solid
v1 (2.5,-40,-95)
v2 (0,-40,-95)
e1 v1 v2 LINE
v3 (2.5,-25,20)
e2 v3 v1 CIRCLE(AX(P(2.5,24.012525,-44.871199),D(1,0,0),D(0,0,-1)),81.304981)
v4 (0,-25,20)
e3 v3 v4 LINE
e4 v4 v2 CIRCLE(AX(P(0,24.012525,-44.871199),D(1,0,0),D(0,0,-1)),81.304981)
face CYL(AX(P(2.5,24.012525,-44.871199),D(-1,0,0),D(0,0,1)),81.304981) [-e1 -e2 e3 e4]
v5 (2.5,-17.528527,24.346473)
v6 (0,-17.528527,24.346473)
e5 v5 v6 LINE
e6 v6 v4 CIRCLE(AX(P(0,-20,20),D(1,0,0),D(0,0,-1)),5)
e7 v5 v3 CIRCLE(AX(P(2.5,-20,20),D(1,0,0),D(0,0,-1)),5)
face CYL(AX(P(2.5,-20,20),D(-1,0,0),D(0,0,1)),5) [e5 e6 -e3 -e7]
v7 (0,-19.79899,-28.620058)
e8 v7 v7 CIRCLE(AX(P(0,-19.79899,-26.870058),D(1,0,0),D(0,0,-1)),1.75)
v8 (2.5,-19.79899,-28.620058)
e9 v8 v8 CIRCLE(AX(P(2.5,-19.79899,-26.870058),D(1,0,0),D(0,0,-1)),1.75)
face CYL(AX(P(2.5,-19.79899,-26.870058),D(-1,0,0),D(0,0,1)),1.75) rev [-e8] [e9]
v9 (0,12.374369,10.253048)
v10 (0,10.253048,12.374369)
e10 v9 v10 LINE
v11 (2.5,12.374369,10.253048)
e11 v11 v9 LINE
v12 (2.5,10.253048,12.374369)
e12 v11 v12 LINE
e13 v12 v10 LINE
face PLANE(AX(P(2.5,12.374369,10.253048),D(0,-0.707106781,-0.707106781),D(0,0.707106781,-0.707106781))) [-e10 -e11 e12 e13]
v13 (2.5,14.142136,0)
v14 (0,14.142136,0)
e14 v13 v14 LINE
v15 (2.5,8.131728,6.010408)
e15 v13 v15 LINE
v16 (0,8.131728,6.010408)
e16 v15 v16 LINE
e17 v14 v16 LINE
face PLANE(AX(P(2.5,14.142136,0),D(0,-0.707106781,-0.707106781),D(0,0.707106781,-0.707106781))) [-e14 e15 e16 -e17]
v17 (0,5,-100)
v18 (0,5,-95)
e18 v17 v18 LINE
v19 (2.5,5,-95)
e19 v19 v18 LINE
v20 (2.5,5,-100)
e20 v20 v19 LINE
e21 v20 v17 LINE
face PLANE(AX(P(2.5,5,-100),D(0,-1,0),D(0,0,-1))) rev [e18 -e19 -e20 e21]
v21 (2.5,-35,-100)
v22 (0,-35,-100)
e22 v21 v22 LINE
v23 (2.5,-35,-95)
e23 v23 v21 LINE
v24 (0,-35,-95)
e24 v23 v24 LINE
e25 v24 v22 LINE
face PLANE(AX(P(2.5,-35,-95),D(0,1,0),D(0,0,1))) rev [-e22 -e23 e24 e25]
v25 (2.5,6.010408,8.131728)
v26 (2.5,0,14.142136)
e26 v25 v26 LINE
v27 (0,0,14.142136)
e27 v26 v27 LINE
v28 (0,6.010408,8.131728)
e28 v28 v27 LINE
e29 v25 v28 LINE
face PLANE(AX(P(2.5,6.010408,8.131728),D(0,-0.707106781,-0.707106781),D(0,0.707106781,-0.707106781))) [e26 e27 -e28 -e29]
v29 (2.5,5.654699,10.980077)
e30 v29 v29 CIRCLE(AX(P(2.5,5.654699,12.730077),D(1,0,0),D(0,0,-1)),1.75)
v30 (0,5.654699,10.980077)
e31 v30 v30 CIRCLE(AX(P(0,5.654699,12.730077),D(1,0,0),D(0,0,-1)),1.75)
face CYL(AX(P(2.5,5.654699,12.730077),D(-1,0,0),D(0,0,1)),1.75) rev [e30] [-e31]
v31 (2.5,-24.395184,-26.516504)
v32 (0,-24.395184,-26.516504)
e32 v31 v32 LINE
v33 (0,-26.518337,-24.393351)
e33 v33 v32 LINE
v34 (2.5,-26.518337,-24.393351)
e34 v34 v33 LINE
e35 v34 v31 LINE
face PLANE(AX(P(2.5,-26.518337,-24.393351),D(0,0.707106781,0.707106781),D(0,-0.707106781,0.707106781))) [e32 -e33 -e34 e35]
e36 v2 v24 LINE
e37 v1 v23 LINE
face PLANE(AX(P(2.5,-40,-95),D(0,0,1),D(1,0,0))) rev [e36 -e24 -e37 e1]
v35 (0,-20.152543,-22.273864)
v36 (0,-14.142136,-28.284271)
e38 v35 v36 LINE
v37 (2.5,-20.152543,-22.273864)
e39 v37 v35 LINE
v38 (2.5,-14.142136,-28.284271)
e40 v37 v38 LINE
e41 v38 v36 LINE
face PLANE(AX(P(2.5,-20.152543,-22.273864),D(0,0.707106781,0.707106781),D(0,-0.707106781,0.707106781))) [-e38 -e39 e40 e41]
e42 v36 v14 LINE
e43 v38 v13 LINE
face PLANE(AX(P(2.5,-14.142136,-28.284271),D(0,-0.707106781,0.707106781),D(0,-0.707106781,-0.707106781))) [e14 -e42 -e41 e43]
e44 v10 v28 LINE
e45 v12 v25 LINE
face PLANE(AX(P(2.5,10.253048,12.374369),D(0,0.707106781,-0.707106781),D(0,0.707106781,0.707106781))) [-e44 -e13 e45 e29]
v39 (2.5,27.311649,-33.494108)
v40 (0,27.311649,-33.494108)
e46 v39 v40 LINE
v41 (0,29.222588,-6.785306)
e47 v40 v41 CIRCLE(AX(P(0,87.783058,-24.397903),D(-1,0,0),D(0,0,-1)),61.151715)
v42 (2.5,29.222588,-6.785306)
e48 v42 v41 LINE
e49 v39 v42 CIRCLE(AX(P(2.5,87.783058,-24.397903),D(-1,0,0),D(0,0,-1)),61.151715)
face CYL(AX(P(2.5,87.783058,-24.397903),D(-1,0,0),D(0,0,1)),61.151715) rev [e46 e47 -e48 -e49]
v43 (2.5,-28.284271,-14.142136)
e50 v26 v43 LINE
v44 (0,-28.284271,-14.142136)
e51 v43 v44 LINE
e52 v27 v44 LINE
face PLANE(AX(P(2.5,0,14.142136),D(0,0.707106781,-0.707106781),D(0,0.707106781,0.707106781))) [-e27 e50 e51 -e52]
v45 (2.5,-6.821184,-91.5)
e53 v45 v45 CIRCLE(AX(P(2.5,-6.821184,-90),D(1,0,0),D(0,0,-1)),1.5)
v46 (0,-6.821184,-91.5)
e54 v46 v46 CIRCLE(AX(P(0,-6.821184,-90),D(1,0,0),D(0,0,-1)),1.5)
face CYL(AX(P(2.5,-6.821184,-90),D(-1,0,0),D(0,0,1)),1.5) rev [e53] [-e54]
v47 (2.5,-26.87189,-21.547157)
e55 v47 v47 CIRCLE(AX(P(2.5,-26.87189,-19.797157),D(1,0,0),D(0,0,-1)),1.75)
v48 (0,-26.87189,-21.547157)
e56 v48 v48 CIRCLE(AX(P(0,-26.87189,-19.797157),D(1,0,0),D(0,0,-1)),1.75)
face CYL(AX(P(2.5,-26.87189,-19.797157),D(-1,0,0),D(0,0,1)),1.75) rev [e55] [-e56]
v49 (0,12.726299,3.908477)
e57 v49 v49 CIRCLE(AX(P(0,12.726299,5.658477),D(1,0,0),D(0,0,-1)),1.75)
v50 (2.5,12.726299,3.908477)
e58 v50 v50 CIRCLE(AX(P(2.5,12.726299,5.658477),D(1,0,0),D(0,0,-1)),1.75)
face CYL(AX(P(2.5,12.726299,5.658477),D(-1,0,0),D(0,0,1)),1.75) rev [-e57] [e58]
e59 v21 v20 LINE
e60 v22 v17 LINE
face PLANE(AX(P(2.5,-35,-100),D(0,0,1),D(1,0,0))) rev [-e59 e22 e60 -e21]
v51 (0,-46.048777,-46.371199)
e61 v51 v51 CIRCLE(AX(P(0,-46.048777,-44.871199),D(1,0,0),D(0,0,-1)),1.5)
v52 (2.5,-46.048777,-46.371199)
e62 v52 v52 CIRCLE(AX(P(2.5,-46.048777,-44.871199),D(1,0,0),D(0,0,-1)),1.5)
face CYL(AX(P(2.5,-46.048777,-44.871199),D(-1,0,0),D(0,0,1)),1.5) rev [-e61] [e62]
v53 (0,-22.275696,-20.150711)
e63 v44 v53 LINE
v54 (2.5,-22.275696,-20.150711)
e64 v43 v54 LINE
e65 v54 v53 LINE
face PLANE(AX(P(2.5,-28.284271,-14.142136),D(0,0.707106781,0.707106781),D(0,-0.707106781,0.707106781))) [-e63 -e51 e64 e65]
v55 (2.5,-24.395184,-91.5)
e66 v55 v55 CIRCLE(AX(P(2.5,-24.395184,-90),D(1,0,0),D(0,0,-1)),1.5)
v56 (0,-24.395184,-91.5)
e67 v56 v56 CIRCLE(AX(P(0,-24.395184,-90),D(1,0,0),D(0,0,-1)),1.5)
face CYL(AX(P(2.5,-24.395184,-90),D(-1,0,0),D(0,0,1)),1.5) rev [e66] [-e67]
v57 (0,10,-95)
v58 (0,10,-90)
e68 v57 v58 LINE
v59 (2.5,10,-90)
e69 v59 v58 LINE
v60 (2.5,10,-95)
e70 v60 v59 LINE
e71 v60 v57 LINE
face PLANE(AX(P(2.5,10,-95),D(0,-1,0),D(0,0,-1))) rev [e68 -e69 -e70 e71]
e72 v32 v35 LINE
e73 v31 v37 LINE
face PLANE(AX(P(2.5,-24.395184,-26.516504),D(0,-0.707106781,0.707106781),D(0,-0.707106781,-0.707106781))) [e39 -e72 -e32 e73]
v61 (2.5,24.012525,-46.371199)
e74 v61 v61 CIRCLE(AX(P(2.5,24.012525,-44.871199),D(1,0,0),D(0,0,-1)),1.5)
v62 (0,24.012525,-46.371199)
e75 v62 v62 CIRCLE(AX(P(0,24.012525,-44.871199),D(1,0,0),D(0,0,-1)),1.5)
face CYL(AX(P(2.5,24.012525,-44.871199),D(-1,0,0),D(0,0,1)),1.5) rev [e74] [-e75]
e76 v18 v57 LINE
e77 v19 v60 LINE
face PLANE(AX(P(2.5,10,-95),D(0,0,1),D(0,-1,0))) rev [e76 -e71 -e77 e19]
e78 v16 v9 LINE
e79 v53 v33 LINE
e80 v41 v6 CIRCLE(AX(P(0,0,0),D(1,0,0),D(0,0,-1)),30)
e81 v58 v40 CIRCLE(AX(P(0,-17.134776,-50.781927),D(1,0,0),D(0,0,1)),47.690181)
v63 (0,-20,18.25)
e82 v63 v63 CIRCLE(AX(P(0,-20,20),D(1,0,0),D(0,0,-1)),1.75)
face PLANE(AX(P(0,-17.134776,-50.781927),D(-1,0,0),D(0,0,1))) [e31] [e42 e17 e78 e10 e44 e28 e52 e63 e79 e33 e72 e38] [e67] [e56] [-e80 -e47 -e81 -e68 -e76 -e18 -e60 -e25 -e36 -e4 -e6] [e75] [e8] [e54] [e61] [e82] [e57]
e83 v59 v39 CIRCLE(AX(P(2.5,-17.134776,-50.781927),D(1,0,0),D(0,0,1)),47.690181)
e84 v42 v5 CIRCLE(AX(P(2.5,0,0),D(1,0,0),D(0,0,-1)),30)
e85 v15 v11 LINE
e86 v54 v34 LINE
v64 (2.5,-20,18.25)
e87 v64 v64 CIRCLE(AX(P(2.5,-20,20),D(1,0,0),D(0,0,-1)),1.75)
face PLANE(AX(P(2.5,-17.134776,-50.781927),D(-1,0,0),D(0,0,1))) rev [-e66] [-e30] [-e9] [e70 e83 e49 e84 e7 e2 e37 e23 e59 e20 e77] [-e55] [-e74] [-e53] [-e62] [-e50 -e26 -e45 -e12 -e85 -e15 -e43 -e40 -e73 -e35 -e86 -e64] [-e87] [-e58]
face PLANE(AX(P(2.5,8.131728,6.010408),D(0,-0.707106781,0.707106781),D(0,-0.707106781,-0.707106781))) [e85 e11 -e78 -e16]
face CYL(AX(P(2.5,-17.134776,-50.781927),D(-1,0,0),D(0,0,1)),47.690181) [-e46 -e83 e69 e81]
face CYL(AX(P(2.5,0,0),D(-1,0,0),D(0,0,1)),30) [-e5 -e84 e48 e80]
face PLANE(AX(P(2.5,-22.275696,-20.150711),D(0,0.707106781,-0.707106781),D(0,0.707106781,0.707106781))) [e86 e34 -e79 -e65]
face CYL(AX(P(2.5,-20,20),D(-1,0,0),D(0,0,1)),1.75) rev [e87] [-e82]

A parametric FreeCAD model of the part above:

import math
import FreeCAD as App
import Part
import Sketcher
from FreeCAD import Vector
Q = App.Units.Quantity

doc = App.newDocument("Part")
params = doc.addObject("Spreadsheet::Sheet", "Params")
for row, (alias, value) in enumerate([
    ("sketch1_diameter", "3 mm"),
    ("sketch1_radius", "30 mm"),
    ("sketch1_radius2", "5 mm"),
    ("sketch1_diameter2", "3.5 mm"),
    ("sketch1_width", "5 mm"),
    ("pad1_length", "2.5 mm"),
], start=1):
    params.set(f"A{row}", alias)
    params.set(f"B{row}", "=" + value)
    params.setAlias(f"B{row}", alias)

body = doc.addObject("PartDesign::Body", "Body")

# Sketch on YZ plane
sketch1 = body.newObject("Sketcher::SketchObject", "Sketch")
sketch1.AttachmentSupport = (doc.getObject("YZ_Plane"), [""])
sketch1.MapMode = "FlatFace"
sketch1.addGeometry([
    Part.LineSegment(Vector(10, -95, 0), Vector(10, -90, 0)),  # 0
    Part.ArcOfCircle(Part.Circle(Vector(-17.134776, -50.781927, 0), Vector(0, 0, 1), 47.690181), math.radians(-55.320846), math.radians(21.253974)),  # 1
    Part.ArcOfCircle(Part.Circle(Vector(87.783058, -24.397903, 0), Vector(0, 0, 1), 61.151715), math.radians(163.260859), math.radians(188.554388)),  # 2
    Part.ArcOfCircle(Part.Circle(Vector(0, 0, 0), Vector(0, 0, 1), 30), math.radians(-13.072091), math.radians(125.752442)),  # 3
    Part.ArcOfCircle(Part.Circle(Vector(-20, 20, 0), Vector(0, 0, 1), 5), math.radians(60.37676), math.radians(180)),  # 4
    Part.ArcOfCircle(Part.Circle(Vector(24.012525, -44.871199, 0), Vector(0, 0, 1), 81.304981), math.radians(127.072359), math.radians(218.064825)),  # 5
    Part.LineSegment(Vector(-40, -95, 0), Vector(-35, -95, 0)),  # 6
    Part.LineSegment(Vector(-35, -95, 0), Vector(-35, -100, 0)),  # 7
    Part.LineSegment(Vector(-35, -100, 0), Vector(5, -100, 0)),  # 8
    Part.LineSegment(Vector(5, -100, 0), Vector(5, -95, 0)),  # 9
    Part.LineSegment(Vector(5, -95, 0), Vector(10, -95, 0)),  # 10
    Part.Circle(Vector(-20, 20, 0), Vector(0, 0, 1), 1.75),  # 11
    Part.Circle(Vector(-26.87189, -19.797157, 0), Vector(0, 0, 1), 1.75),  # 12
    Part.Circle(Vector(-19.79899, -26.870058, 0), Vector(0, 0, 1), 1.75),  # 13
    Part.Circle(Vector(-46.048777, -44.871199, 0), Vector(0, 0, 1), 1.5),  # 14
    Part.Circle(Vector(-24.395184, -90, 0), Vector(0, 0, 1), 1.5),  # 15
    Part.Circle(Vector(5.654699, 12.730077, 0), Vector(0, 0, 1), 1.75),  # 16
    Part.LineSegment(Vector(-28.284271, -14.142136, 0), Vector(0, 14.142136, 0)),  # 17
    Part.LineSegment(Vector(0, 14.142136, 0), Vector(6.010408, 8.131728, 0)),  # 18
    Part.LineSegment(Vector(6.010408, 8.131728, 0), Vector(10.253048, 12.374369, 0)),  # 19
    Part.LineSegment(Vector(10.253048, 12.374369, 0), Vector(12.374369, 10.253048, 0)),  # 20
    Part.LineSegment(Vector(12.374369, 10.253048, 0), Vector(8.131728, 6.010408, 0)),  # 21
    Part.LineSegment(Vector(8.131728, 6.010408, 0), Vector(14.142136, 0, 0)),  # 22
    Part.LineSegment(Vector(14.142136, 0, 0), Vector(-14.142136, -28.284271, 0)),  # 23
    Part.LineSegment(Vector(-14.142136, -28.284271, 0), Vector(-20.152543, -22.273864, 0)),  # 24
    Part.LineSegment(Vector(-20.152543, -22.273864, 0), Vector(-24.395184, -26.516504, 0)),  # 25
    Part.LineSegment(Vector(-24.395184, -26.516504, 0), Vector(-26.518337, -24.393351, 0)),  # 26
    Part.LineSegment(Vector(-26.518337, -24.393351, 0), Vector(-22.275696, -20.150711, 0)),  # 27
    Part.LineSegment(Vector(-22.275696, -20.150711, 0), Vector(-28.284271, -14.142136, 0)),  # 28
    Part.Circle(Vector(12.726299, 5.658477, 0), Vector(0, 0, 1), 1.75),  # 29
    Part.Circle(Vector(-6.821184, -90, 0), Vector(0, 0, 1), 1.5),  # 30
    Part.Circle(Vector(24.012525, -44.871199, 0), Vector(0, 0, 1), 1.5),  # 31
], False)
sketch1.addConstraint([
    Sketcher.Constraint("Coincident", 0, 2, 1, 1),
    Sketcher.Constraint("Coincident", 1, 2, 2, 2),
    Sketcher.Constraint("Coincident", 2, 1, 3, 1),
    Sketcher.Constraint("Coincident", 3, 2, 4, 1),
    Sketcher.Constraint("Coincident", 4, 2, 5, 1),
    Sketcher.Constraint("Coincident", 5, 2, 6, 1),
    Sketcher.Constraint("Coincident", 6, 2, 7, 1),
    Sketcher.Constraint("Coincident", 7, 2, 8, 1),
    Sketcher.Constraint("Coincident", 8, 2, 9, 1),
    Sketcher.Constraint("Coincident", 9, 2, 10, 1),
    Sketcher.Constraint("Coincident", 10, 2, 0, 1),
    Sketcher.Constraint("Coincident", 17, 2, 18, 1),
    Sketcher.Constraint("Coincident", 18, 2, 19, 1),
    Sketcher.Constraint("Coincident", 19, 2, 20, 1),
    Sketcher.Constraint("Coincident", 20, 2, 21, 1),
    Sketcher.Constraint("Coincident", 21, 2, 22, 1),
    Sketcher.Constraint("Coincident", 22, 2, 23, 1),
    Sketcher.Constraint("Coincident", 23, 2, 24, 1),
    Sketcher.Constraint("Coincident", 24, 2, 25, 1),
    Sketcher.Constraint("Coincident", 25, 2, 26, 1),
    Sketcher.Constraint("Coincident", 26, 2, 27, 1),
    Sketcher.Constraint("Coincident", 27, 2, 28, 1),
    Sketcher.Constraint("Coincident", 28, 2, 17, 1),
    Sketcher.Constraint("Vertical", 0),
    Sketcher.Constraint("Horizontal", 6),
    Sketcher.Constraint("Vertical", 7),
    Sketcher.Constraint("Horizontal", 8),
    Sketcher.Constraint("Vertical", 9),
    Sketcher.Constraint("Horizontal", 10),
    Sketcher.Constraint("Coincident", 3, 3, -1, 1),
    Sketcher.Constraint("Coincident", 11, 3, 4, 3),
    Sketcher.Constraint("Coincident", 31, 3, 5, 3),
    Sketcher.Constraint("Equal", 11, 12),
    Sketcher.Constraint("Equal", 12, 13),
    Sketcher.Constraint("Equal", 14, 15),
    Sketcher.Constraint("Equal", 13, 16),
    Sketcher.Constraint("Equal", 16, 29),
    Sketcher.Constraint("Equal", 15, 30),
    Sketcher.Constraint("Equal", 30, 31),
    Sketcher.Constraint("PointOnObject", 17, 2, -2),
    Sketcher.Constraint("PointOnObject", 22, 2, -1),
    Sketcher.Constraint("Perpendicular", 17, 18),
    Sketcher.Constraint("Perpendicular", 18, 19),
    Sketcher.Constraint("Perpendicular", 19, 20),
    Sketcher.Constraint("Perpendicular", 20, 21),
    Sketcher.Constraint("Perpendicular", 21, 22),
    Sketcher.Constraint("Perpendicular", 22, 23),
    Sketcher.Constraint("Perpendicular", 23, 24),
    Sketcher.Constraint("Perpendicular", 24, 25),
    Sketcher.Constraint("Perpendicular", 25, 26),
    Sketcher.Constraint("Perpendicular", 26, 27),
    Sketcher.Constraint("Perpendicular", 27, 28),
    Sketcher.Constraint("Horizontal", 5, 3, 14, 3),
    Sketcher.Constraint("Horizontal", 15, 3, 30, 3),
    Sketcher.Constraint("Horizontal", 30, 3, 0, 2),
    Sketcher.Constraint("Horizontal", 11, 3, 4, 2),
    Sketcher.Constraint("Horizontal", 6, 2, 9, 2),
    Sketcher.Constraint("Vertical", 15, 3, 25, 2),
    Sketcher.Constraint("Equal", 6, 10),
    Sketcher.Constraint("Equal", 10, 0),
    Sketcher.Constraint("Equal", 0, 7),
    Sketcher.Constraint("Equal", 19, 21),
    Sketcher.Constraint("Equal", 18, 22),
    Sketcher.Constraint("Equal", 17, 23),
    Sketcher.Constraint("Equal", 22, 24),
    Sketcher.Constraint("Equal", 21, 25),
    Sketcher.Constraint("Diameter", 14, 3.0),
    Sketcher.Constraint("Radius", 3, 30.0),
    Sketcher.Constraint("Radius", 4, 5.0),
    Sketcher.Constraint("Diameter", 11, 3.5),
    Sketcher.Constraint("DistanceX", 6, 1, 6, 2, 5.0),
    Sketcher.Constraint("DistanceX", 8, 1, 8, 2, 40.0),
    Sketcher.Constraint("Angle", 17, Q("45 deg")),
    Sketcher.Constraint("Distance", 17, 40.0),
    Sketcher.Constraint("Distance", 19, 6.0),
    Sketcher.Constraint("Distance", 20, 3.0),
    Sketcher.Constraint("DistanceX", 4, 3, -1, 1, 20.0),
    Sketcher.Constraint("DistanceY", -1, 1, 4, 3, 20.0),
    Sketcher.Constraint("DistanceY", 15, 3, -1, 1, 90.0),
    Sketcher.Constraint("DistanceX", -1, 1, 0, 2, 10.0),
    Sketcher.Constraint("Distance", 18, 8.5),
    Sketcher.Constraint("Radius", 1, 47.690181),
    Sketcher.Constraint("Radius", 5, 81.304981),
    Sketcher.Constraint("Radius", 2, 61.151715),
    Sketcher.Constraint("DistanceX", 14, 3, 1, 3, 28.914),
    Sketcher.Constraint("DistanceX", 15, 3, 30, 3, 17.574),
    Sketcher.Constraint("DistanceX", -1, 1, 16, 3, 5.654699),
    Sketcher.Constraint("DistanceX", -1, 1, 29, 3, 12.726299),
    Sketcher.Constraint("DistanceX", 1, 3, 5, 3, 41.147301),
    Sketcher.Constraint("DistanceX", 12, 3, 13, 3, 7.0729),
    Sketcher.Constraint("DistanceY", 13, 3, 12, 3, 7.0729),
    Sketcher.Constraint("DistanceY", 29, 3, 16, 3, 7.0716),
    Sketcher.Constraint("DistanceX", 26, 2, 23, 2, 12.376201),
    Sketcher.Constraint("DistanceX", 12, 3, -1, 1, 26.87189),
    Sketcher.Constraint("DistanceX", -1, 1, 1, 2, 27.311649),
    Sketcher.Constraint("DistanceY", 1, 3, 12, 3, 30.984769),
    Sketcher.Constraint("DistanceX", 29, 3, 2, 1, 16.496289),
    Sketcher.Constraint("DistanceY", 16, 3, 17, 2, 1.412058),
])
sketch1.setExpression("Constraints[66]", "Params.sketch1_diameter")
sketch1.setExpression("Constraints[67]", "Params.sketch1_radius")
sketch1.setExpression("Constraints[68]", "Params.sketch1_radius2")
sketch1.setExpression("Constraints[69]", "Params.sketch1_diameter2")
sketch1.setExpression("Constraints[70]", "Params.sketch1_width")
pad1 = body.newObject("PartDesign::Pad", "Pad")
pad1.Profile = sketch1
pad1.setExpression("Length", "Params.pad1_length")

doc.recompute()
